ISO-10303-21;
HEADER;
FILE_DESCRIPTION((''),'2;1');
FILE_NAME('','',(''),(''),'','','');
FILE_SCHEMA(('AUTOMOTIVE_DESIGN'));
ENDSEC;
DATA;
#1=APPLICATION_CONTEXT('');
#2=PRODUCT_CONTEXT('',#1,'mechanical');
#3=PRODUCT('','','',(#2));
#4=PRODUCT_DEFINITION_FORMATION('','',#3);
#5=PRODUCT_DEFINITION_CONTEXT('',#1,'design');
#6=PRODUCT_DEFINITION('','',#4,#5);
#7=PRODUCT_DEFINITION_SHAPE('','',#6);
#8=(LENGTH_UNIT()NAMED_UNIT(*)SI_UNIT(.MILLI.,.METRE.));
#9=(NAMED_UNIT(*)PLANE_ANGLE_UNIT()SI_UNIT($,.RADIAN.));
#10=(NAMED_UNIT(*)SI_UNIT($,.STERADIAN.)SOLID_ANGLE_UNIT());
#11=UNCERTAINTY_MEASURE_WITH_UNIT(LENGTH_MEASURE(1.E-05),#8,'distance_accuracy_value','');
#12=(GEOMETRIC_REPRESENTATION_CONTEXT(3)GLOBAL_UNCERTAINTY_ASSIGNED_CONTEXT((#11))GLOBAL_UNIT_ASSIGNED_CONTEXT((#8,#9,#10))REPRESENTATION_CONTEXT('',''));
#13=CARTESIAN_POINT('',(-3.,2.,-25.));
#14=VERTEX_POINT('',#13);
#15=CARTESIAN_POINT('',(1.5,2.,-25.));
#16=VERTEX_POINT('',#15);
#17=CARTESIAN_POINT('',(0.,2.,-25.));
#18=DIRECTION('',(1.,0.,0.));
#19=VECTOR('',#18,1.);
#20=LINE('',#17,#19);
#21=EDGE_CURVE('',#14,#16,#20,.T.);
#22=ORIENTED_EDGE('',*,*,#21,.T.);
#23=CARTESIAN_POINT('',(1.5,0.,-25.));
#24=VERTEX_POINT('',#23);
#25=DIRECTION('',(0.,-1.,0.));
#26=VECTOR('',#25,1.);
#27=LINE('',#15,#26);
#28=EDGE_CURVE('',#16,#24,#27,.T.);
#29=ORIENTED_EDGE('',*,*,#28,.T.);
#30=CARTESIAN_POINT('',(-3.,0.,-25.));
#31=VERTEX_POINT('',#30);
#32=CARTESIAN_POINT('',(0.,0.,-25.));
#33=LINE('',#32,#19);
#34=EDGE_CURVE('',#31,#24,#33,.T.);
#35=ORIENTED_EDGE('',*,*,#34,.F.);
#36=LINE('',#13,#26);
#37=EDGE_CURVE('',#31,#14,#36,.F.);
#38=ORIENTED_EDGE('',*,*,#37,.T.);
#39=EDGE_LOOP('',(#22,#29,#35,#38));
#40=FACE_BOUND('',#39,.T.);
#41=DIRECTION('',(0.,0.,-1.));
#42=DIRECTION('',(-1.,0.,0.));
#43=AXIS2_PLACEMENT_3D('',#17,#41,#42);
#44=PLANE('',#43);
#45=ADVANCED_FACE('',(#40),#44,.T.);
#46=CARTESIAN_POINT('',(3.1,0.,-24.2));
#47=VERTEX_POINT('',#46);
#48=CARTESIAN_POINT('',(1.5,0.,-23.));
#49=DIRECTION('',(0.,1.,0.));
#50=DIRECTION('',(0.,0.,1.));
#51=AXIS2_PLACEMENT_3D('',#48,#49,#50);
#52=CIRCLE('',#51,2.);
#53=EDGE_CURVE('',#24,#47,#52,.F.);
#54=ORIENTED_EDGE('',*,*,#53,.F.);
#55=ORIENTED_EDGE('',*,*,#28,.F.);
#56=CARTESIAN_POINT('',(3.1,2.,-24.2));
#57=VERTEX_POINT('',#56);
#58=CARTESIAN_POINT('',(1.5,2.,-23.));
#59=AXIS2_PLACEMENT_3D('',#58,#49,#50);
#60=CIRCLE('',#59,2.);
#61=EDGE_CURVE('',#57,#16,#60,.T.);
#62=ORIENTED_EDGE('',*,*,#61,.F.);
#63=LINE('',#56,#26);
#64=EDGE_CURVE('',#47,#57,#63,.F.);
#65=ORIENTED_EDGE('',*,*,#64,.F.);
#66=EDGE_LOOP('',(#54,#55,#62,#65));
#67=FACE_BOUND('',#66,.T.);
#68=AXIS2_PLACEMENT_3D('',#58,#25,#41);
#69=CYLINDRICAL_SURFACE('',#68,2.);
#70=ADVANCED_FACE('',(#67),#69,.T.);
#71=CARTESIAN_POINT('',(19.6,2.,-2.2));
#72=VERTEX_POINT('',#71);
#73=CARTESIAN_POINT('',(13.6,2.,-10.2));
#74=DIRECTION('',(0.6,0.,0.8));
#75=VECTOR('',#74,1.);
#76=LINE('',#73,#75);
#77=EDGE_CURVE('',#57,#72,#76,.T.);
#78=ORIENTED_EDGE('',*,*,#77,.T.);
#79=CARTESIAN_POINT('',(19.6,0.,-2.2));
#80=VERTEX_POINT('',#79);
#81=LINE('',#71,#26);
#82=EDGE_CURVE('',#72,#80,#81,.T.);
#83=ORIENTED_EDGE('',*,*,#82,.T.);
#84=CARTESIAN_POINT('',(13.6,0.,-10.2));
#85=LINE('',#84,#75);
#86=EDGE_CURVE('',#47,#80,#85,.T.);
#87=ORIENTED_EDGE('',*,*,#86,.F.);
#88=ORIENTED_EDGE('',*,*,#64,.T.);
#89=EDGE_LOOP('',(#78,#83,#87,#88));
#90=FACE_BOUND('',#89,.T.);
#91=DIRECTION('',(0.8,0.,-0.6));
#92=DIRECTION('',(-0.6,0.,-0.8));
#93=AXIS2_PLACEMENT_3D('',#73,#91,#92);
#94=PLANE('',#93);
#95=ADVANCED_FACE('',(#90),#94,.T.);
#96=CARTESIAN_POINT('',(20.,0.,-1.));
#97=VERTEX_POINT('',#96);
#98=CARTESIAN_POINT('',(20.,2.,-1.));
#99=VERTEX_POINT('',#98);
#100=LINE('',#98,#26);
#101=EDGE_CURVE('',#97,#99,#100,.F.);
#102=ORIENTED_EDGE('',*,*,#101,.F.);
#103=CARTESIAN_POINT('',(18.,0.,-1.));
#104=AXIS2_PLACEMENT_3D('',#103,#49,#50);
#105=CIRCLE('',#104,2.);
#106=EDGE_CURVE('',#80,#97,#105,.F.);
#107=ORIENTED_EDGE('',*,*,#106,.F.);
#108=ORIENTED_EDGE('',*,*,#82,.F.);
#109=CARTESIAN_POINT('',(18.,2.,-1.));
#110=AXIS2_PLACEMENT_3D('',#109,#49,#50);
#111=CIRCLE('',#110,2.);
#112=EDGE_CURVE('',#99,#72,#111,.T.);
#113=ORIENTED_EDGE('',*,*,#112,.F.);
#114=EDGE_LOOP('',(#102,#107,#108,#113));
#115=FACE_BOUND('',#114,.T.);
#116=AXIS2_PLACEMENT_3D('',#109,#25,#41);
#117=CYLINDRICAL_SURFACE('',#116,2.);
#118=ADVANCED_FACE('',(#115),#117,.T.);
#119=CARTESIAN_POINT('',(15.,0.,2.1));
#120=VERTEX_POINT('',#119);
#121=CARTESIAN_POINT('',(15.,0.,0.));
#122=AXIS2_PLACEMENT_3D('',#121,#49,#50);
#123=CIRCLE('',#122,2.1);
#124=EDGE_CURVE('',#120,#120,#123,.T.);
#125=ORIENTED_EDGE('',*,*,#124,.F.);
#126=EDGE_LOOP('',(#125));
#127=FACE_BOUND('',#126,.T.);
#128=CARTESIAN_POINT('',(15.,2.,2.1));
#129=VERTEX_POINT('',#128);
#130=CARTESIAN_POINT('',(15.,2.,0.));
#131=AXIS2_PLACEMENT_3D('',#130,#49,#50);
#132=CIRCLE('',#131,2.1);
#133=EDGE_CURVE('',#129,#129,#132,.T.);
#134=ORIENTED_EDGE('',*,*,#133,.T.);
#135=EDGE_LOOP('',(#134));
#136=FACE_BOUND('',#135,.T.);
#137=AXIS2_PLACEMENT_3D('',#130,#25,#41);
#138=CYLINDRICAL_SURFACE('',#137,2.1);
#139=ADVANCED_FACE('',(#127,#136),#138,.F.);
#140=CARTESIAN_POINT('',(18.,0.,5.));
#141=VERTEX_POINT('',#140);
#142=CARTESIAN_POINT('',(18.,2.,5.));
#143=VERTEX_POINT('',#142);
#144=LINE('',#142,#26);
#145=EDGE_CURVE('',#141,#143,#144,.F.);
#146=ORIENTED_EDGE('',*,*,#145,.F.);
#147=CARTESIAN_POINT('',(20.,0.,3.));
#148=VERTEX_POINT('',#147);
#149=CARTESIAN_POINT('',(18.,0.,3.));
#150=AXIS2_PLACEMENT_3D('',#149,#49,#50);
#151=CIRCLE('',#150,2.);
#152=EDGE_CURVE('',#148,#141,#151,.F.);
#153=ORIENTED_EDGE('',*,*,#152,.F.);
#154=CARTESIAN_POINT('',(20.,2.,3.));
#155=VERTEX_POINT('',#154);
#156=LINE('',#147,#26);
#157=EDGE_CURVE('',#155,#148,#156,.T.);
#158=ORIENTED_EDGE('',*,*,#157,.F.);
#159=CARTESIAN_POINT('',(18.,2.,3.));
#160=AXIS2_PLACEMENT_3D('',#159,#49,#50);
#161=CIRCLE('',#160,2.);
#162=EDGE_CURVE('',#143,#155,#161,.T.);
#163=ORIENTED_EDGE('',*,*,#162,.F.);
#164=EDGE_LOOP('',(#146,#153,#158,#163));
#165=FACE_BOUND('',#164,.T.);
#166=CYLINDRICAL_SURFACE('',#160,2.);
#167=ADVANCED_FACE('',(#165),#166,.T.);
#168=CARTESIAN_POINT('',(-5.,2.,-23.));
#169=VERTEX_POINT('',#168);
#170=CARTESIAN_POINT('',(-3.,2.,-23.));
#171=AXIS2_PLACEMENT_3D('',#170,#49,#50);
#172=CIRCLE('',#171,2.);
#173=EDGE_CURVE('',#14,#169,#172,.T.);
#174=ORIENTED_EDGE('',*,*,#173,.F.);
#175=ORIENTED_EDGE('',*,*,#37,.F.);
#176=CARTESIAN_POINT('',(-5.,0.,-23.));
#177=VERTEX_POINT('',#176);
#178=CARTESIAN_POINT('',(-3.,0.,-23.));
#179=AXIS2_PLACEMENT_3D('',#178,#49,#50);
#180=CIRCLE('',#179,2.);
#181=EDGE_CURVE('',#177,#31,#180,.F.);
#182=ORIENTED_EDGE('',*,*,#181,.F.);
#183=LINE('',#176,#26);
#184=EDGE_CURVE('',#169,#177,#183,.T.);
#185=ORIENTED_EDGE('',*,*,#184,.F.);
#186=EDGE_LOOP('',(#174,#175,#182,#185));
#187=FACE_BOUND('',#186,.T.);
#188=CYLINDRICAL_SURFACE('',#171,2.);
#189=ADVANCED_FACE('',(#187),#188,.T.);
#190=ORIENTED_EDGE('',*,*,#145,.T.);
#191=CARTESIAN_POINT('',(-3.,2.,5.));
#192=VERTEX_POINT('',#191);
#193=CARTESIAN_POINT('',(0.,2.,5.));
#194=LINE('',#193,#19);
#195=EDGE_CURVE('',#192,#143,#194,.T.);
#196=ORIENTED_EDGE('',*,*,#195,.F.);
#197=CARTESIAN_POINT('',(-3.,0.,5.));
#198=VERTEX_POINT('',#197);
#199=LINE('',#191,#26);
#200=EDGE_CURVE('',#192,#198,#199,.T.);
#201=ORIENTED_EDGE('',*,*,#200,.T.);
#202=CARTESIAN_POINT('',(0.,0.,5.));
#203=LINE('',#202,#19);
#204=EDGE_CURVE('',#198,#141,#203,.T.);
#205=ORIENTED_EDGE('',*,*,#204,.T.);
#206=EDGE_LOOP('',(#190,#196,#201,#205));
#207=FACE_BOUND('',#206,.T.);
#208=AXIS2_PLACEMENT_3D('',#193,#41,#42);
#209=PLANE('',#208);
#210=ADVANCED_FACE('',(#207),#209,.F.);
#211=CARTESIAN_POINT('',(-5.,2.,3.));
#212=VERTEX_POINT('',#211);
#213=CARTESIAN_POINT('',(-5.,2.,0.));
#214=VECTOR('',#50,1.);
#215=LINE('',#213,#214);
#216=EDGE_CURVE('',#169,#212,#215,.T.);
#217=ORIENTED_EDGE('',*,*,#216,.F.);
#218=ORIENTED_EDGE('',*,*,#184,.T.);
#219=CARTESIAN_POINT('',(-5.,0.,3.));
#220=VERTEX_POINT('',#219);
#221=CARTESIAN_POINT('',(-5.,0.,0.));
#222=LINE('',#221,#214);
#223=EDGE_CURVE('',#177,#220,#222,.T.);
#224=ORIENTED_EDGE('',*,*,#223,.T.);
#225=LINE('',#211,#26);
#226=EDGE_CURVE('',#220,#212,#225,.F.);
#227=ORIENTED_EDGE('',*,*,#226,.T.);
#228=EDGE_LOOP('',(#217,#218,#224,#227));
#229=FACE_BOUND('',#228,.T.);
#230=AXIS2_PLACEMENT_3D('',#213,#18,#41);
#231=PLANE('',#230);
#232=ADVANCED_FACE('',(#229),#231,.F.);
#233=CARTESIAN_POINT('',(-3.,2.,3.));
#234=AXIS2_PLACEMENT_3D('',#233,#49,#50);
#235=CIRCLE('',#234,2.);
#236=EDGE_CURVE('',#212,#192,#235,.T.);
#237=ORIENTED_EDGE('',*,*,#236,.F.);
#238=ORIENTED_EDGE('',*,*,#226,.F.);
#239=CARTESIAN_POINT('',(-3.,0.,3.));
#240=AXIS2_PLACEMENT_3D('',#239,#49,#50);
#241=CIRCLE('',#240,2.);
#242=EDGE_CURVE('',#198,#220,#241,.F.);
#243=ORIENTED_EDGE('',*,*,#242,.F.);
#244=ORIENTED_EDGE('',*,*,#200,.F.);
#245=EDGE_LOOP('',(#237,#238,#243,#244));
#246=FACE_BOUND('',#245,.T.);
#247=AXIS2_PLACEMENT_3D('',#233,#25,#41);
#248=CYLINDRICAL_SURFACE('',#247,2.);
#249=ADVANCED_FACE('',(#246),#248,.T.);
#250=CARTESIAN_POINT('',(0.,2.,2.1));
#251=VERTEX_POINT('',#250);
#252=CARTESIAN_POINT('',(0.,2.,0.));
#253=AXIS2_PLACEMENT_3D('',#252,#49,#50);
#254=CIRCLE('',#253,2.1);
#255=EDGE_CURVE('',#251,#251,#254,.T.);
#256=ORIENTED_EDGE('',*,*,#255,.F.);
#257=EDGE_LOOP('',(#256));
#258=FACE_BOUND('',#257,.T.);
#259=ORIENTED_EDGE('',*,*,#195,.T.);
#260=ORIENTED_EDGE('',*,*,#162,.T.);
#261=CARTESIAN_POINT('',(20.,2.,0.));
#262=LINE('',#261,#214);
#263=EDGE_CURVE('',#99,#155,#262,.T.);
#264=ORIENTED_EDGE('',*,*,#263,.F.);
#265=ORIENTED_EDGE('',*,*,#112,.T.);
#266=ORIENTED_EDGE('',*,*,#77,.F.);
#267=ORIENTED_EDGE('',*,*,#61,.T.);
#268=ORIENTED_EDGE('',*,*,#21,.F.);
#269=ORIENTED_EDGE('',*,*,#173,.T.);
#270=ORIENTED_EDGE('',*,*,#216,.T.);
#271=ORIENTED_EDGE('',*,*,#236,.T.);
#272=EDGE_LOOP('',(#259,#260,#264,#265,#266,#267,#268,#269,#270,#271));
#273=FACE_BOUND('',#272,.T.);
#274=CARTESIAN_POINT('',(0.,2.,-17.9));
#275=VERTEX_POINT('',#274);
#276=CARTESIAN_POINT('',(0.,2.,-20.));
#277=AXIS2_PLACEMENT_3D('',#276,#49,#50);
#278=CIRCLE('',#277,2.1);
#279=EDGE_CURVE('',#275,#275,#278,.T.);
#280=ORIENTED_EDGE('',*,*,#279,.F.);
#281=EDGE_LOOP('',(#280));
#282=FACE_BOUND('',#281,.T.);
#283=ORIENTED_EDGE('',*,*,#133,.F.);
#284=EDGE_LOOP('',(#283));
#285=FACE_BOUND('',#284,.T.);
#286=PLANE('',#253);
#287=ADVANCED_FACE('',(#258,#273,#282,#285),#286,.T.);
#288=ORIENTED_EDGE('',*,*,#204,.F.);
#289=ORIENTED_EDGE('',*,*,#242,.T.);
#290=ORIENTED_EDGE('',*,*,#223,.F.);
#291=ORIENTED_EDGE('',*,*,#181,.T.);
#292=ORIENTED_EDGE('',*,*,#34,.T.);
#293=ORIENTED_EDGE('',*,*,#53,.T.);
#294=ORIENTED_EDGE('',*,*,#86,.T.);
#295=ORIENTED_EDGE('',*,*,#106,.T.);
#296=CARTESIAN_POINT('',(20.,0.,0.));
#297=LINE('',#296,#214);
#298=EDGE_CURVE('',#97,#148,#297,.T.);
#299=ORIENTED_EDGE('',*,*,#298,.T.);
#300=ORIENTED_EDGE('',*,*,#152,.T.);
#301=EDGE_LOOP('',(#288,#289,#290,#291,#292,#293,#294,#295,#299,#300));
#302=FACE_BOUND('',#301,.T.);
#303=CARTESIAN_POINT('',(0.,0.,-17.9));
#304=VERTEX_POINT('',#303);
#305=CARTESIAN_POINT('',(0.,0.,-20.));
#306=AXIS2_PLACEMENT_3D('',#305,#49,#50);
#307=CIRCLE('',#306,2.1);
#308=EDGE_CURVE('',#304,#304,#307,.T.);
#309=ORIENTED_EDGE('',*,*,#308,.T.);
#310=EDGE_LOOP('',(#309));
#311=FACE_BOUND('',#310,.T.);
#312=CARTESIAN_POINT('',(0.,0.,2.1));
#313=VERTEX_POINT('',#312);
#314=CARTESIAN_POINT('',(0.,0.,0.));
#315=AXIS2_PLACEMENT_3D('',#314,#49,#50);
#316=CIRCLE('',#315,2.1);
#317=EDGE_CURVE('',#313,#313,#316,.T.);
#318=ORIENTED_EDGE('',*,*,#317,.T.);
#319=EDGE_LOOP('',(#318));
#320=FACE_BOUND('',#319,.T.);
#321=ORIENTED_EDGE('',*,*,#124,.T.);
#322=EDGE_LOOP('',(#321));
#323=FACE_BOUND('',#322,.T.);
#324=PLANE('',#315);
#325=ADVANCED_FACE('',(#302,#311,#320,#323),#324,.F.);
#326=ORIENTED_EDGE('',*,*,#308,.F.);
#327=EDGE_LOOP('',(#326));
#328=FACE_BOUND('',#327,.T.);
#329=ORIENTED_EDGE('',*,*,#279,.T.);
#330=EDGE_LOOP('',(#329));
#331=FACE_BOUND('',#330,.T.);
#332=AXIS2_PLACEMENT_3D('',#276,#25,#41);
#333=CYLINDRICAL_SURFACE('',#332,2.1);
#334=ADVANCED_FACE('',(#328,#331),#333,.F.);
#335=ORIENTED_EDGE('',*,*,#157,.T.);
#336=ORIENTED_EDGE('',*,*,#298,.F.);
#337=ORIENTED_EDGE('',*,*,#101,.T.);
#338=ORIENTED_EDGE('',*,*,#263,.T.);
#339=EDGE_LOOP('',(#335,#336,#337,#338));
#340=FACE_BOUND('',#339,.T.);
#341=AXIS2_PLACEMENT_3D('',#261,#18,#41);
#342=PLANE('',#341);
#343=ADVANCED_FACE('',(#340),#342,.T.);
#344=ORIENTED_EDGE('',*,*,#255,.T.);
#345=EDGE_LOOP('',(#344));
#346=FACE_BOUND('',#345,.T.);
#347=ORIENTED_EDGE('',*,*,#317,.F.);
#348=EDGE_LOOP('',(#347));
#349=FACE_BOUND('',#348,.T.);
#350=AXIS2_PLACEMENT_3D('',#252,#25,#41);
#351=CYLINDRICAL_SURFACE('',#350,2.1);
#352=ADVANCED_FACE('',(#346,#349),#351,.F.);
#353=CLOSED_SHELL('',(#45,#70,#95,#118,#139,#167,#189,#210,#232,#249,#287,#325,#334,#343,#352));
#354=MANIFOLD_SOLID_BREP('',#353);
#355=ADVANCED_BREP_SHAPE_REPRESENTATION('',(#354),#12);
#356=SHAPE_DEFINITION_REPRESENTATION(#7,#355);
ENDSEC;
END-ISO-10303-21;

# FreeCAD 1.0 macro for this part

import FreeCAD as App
import Part
import Sketcher


def edges_at(feature, points):
    """Names of the edges that pass closest to the given points."""
    edges = feature.Shape.Edges
    near = lambda p: min(range(len(edges)), key=lambda i: edges[i].distToShape(Part.Vertex(*p))[0])
    return sorted({f"Edge{near(p) + 1}" for p in points})

doc = App.newDocument("Part")
body = doc.addObject("PartDesign::Body", "Body")

sketch1 = body.newObject("Sketcher::SketchObject", "Sketch")
sketch1.AttachmentSupport = (doc.getObject("XZ_Plane"), [""])
sketch1.MapMode = "FlatFace"
sketch1.addGeometry(Part.LineSegment(App.Vector(-5, -25, 0), App.Vector(-5, 5, 0)), False)
sketch1.addGeometry(Part.LineSegment(App.Vector(-5, 5, 0), App.Vector(20, 5, 0)), False)
sketch1.addGeometry(Part.LineSegment(App.Vector(20, 5, 0), App.Vector(20, -1.7, 0)), False)
sketch1.addGeometry(Part.LineSegment(App.Vector(20, -1.7, 0), App.Vector(2.5, -25, 0)), False)
sketch1.addGeometry(Part.LineSegment(App.Vector(2.5, -25, 0), App.Vector(-5, -25, 0)), False)
sketch1.addGeometry(Part.Circle(App.Vector(0, 0, 0), App.Vector(0, 0, 1), 2.1), False)
sketch1.addGeometry(Part.Circle(App.Vector(15, 0, 0), App.Vector(0, 0, 1), 2.1), False)
sketch1.addGeometry(Part.Circle(App.Vector(0, -20, 0), App.Vector(0, 0, 1), 2.1), False)
sketch1.addConstraint(Sketcher.Constraint("Coincident", 0, 2, 1, 1))
sketch1.addConstraint(Sketcher.Constraint("Coincident", 1, 2, 2, 1))
sketch1.addConstraint(Sketcher.Constraint("Coincident", 2, 2, 3, 1))
sketch1.addConstraint(Sketcher.Constraint("Coincident", 3, 2, 4, 1))
sketch1.addConstraint(Sketcher.Constraint("Coincident", 4, 2, 0, 1))
sketch1.addConstraint(Sketcher.Constraint("Vertical", 0))
sketch1.addConstraint(Sketcher.Constraint("Horizontal", 1))
sketch1.addConstraint(Sketcher.Constraint("Vertical", 2))
sketch1.addConstraint(Sketcher.Constraint("Horizontal", 4))
sketch1.addConstraint(Sketcher.Constraint("Coincident", 5, 3, -1, 1))
sketch1.addConstraint(Sketcher.Constraint("Equal", 5, 6))
sketch1.addConstraint(Sketcher.Constraint("Equal", 6, 7))
sketch1.addConstraint(Sketcher.Constraint("PointOnObject", 6, 3, -1))
sketch1.addConstraint(Sketcher.Constraint("PointOnObject", 7, 3, -2))
sketch1.addConstraint(Sketcher.Constraint("Diameter", 5, 4.2))
sketch1.addConstraint(Sketcher.Constraint("DistanceX", 1, 1, 1, 2, 25.0))
sketch1.addConstraint(Sketcher.Constraint("DistanceY", 0, 1, 0, 2, 30.0))
sketch1.addConstraint(Sketcher.Constraint("DistanceX", 4, 2, 4, 1, 7.5))
sketch1.addConstraint(Sketcher.Constraint("DistanceX", -1, 1, 6, 3, 15.0))
sketch1.addConstraint(Sketcher.Constraint("DistanceY", 7, 3, -1, 1, 20.0))
sketch1.addConstraint(Sketcher.Constraint("DistanceX", 0, 2, -1, 1, 5.0))
sketch1.addConstraint(Sketcher.Constraint("DistanceY", -1, 1, 0, 2, 5.0))
sketch1.addConstraint(Sketcher.Constraint("DistanceY", 2, 2, 2, 1, 6.666667))
pad1 = body.newObject("PartDesign::Pad", "Pad")
pad1.Profile = sketch1
pad1.Length = 2
pad1.Reversed = True
doc.recompute()

fillet = body.newObject("PartDesign::Fillet", "Fillet")
fillet.Base = (pad1, edges_at(pad1, [
    (-5, 1, -25),
    (2.5, 1, -25),
    (20, 1, -1.667),
    (20, 1, 5),
    (-5, 1, 5),
]))
fillet.Radius = 2

doc.recompute()
